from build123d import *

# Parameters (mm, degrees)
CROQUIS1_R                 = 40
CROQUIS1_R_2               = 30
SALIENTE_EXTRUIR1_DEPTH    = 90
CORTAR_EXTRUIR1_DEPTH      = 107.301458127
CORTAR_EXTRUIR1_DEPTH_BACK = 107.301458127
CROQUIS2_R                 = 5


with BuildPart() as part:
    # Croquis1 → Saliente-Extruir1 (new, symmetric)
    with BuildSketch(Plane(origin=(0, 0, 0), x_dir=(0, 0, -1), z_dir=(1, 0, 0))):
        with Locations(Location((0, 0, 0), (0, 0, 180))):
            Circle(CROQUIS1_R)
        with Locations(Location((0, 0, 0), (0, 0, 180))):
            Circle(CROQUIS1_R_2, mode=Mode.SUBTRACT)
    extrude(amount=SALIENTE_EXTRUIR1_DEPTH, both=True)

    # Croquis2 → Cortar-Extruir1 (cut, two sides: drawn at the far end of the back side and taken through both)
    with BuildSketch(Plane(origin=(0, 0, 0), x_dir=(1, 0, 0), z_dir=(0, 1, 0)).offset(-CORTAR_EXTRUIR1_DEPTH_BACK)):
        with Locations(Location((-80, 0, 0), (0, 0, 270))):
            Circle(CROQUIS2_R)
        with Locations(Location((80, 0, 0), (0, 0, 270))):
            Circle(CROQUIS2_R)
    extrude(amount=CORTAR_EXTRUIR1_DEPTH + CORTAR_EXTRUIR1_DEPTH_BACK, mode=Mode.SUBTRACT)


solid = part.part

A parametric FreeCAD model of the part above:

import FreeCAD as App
import Part
import Sketcher
Q = App.Units.Quantity

doc = App.newDocument("Part")
body = doc.addObject("PartDesign::Body", "Body")

# Sketch on YZ plane
sketch1 = body.newObject("Sketcher::SketchObject", "Sketch")
sketch1.AttachmentSupport = (doc.getObject("YZ_Plane"), [""])
sketch1.MapMode = "FlatFace"
sketch1.addGeometry([
    Part.Circle(App.Vector(0, 0, 0), App.Vector(0, 0, 1), 40),
    Part.Circle(App.Vector(0, 0, 0), App.Vector(0, 0, 1), 30),
], False)
sketch1.addConstraint([
    Sketcher.Constraint("Coincident", 0, 3, -1, 1),
    Sketcher.Constraint("Coincident", 1, 3, -1, 1),
    Sketcher.Constraint("Diameter", 0, Q("80 mm")),
    Sketcher.Constraint("Diameter", 1, Q("60 mm")),
])
pad1 = body.newObject("PartDesign::Pad", "Pad")
pad1.Profile = sketch1
pad1.Length = 180
pad1.Midplane = True

# Sketch on XZ plane
sketch2 = body.newObject("Sketcher::SketchObject", "Sketch001")
sketch2.AttachmentSupport = (doc.getObject("XZ_Plane"), [""])
sketch2.MapMode = "FlatFace"
sketch2.addGeometry([
    Part.Circle(App.Vector(-80, 0, 0), App.Vector(0, 0, 1), 5),
    Part.Circle(App.Vector(80, 0, 0), App.Vector(0, 0, 1), 5),
], False)
sketch2.addConstraint([
    Sketcher.Constraint("Equal", 0, 1),
    Sketcher.Constraint("Symmetric", 0, 3, 1, 3, -1, 1),
    Sketcher.Constraint("PointOnObject", 0, 3, -1),
    Sketcher.Constraint("Diameter", 0, Q("10 mm")),
    Sketcher.Constraint("DistanceX", 0, 3, -1, 1, Q("80 mm")),
])
pocket1 = body.newObject("PartDesign::Pocket", "Pocket")
pocket1.Profile = sketch2
pocket1.Type = "ThroughAll"
pocket1.Midplane = True

doc.recompute()
